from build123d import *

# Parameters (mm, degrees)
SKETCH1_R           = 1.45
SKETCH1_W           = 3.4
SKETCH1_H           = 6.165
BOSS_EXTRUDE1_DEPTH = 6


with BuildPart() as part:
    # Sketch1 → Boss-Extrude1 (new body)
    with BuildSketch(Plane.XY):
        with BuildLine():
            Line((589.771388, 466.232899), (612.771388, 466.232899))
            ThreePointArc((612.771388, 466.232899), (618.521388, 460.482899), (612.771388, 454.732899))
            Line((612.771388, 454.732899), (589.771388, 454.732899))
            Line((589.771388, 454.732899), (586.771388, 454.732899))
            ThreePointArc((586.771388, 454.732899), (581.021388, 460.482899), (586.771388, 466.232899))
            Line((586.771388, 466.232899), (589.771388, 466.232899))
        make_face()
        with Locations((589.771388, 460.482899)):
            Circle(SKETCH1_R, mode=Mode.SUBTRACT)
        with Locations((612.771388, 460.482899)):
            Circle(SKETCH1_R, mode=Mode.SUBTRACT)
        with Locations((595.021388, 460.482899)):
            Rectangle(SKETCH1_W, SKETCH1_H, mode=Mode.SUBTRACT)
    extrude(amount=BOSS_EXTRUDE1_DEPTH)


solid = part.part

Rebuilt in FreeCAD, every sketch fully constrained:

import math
import FreeCAD as App
import Part
import Sketcher

V = App.Vector


def add_polygon(sketch, points):
    """Adds a closed chain of lines whose ends are joined by coincident constraints."""
    first, n = sketch.GeometryCount, len(points)
    for a, b in zip(points, points[1:] + points[:1]):
        sketch.addGeometry(Part.LineSegment(App.Vector(*a, 0), App.Vector(*b, 0)), False)
    for i in range(n):
        sketch.addConstraint(Sketcher.Constraint("Coincident", first + i, 2, first + (i + 1) % n, 1))

doc = App.newDocument("Part")
params = doc.addObject("Spreadsheet::Sheet", "Params")
for row, (alias, value) in enumerate([
    ("sketch1_diameter", "2.9 mm"),
    ("sketch1_width", "26 mm"),
    ("sketch1_radius", "5.75 mm"),
    ("sketch1_width2", "3.4 mm"),
    ("pad1_length", "6 mm"),
], start=1):
    params.set(f"A{row}", alias)
    params.set(f"B{row}", "=" + value)
    params.setAlias(f"B{row}", alias)

body = doc.addObject("PartDesign::Body", "Body")

# Sketch on XY plane
sketch1 = body.newObject("Sketcher::SketchObject", "Sketch")
sketch1.AttachmentSupport = (doc.getObject("XY_Plane"), [""])
sketch1.MapMode = "FlatFace"
sketch1.addGeometry(Part.ArcOfCircle(Part.Circle(V(612.8, 460.5, 0), V(0, 0, 1), 5.8), math.radians(-90), math.radians(90)), False)  # 0
sketch1.addGeometry(Part.LineSegment(V(612.8, 466.2, 0), V(586.8, 466.2, 0)), False)  # 1
sketch1.addGeometry(Part.ArcOfCircle(Part.Circle(V(586.8, 460.5, 0), V(0, 0, 1), 5.8), math.radians(90), math.radians(270)), False)  # 2
sketch1.addGeometry(Part.LineSegment(V(586.8, 454.7, 0), V(612.8, 454.7, 0)), False)  # 3
sketch1.addGeometry(Part.Circle(V(612.8, 460.5, 0), V(0, 0, 1), 1.4), False)  # 4
add_polygon(sketch1, [(593.3, 457.4), (593.3, 463.6), (596.7, 463.6), (596.7, 457.4)])  # lines 5-8
sketch1.addGeometry(Part.Circle(V(589.8, 460.5, 0), V(0, 0, 1), 1.4), False)  # 9
sketch1.addConstraint(Sketcher.Constraint("Tangent", 0, 2, 1, 1))
sketch1.addConstraint(Sketcher.Constraint("Tangent", 1, 2, 2, 1))
sketch1.addConstraint(Sketcher.Constraint("Tangent", 2, 2, 3, 1))
sketch1.addConstraint(Sketcher.Constraint("Tangent", 3, 2, 0, 1))
sketch1.addConstraint(Sketcher.Constraint("Horizontal", 1))
sketch1.addConstraint(Sketcher.Constraint("Horizontal", 3))
sketch1.addConstraint(Sketcher.Constraint("Vertical", 5))
sketch1.addConstraint(Sketcher.Constraint("Horizontal", 6))
sketch1.addConstraint(Sketcher.Constraint("Vertical", 7))
sketch1.addConstraint(Sketcher.Constraint("Horizontal", 8))
sketch1.addConstraint(Sketcher.Constraint("Coincident", 4, 3, 0, 3))
sketch1.addConstraint(Sketcher.Constraint("Equal", 4, 9))
sketch1.addConstraint(Sketcher.Constraint("Horizontal", 4, 3, 9, 3))
sketch1.addConstraint(Sketcher.Constraint("Diameter", 4, 2.9))
sketch1.addConstraint(Sketcher.Constraint("DistanceX", 1, 2, 1, 1, 26.0))
sketch1.addConstraint(Sketcher.Constraint("Radius", 0, 5.75))
sketch1.addConstraint(Sketcher.Constraint("DistanceX", 6, 1, 6, 2, 3.4))
sketch1.addConstraint(Sketcher.Constraint("DistanceX", 2, 3, 9, 3, 3.0))
sketch1.addConstraint(Sketcher.Constraint("DistanceY", 5, 1, 5, 2, 6.165))
sketch1.addConstraint(Sketcher.Constraint("DistanceX", 9, 3, 5, 2, 3.55))
sketch1.addConstraint(Sketcher.Constraint("DistanceY", -1, 1, 0, 3, 460.482899))
sketch1.addConstraint(Sketcher.Constraint("DistanceY", -1, 1, 5, 2, 463.565399))
sketch1.addConstraint(Sketcher.Constraint("DistanceX", -1, 1, 0, 3, 612.771388))
sketch1.setExpression("Constraints[17]", "Params.sketch1_diameter")
sketch1.setExpression("Constraints[18]", "Params.sketch1_width")
sketch1.setExpression("Constraints[19]", "Params.sketch1_radius")
sketch1.setExpression("Constraints[20]", "Params.sketch1_width2")
pad1 = body.newObject("PartDesign::Pad", "Pad")
pad1.Profile = sketch1
pad1.setExpression("Length", "Params.pad1_length")

doc.recompute()
